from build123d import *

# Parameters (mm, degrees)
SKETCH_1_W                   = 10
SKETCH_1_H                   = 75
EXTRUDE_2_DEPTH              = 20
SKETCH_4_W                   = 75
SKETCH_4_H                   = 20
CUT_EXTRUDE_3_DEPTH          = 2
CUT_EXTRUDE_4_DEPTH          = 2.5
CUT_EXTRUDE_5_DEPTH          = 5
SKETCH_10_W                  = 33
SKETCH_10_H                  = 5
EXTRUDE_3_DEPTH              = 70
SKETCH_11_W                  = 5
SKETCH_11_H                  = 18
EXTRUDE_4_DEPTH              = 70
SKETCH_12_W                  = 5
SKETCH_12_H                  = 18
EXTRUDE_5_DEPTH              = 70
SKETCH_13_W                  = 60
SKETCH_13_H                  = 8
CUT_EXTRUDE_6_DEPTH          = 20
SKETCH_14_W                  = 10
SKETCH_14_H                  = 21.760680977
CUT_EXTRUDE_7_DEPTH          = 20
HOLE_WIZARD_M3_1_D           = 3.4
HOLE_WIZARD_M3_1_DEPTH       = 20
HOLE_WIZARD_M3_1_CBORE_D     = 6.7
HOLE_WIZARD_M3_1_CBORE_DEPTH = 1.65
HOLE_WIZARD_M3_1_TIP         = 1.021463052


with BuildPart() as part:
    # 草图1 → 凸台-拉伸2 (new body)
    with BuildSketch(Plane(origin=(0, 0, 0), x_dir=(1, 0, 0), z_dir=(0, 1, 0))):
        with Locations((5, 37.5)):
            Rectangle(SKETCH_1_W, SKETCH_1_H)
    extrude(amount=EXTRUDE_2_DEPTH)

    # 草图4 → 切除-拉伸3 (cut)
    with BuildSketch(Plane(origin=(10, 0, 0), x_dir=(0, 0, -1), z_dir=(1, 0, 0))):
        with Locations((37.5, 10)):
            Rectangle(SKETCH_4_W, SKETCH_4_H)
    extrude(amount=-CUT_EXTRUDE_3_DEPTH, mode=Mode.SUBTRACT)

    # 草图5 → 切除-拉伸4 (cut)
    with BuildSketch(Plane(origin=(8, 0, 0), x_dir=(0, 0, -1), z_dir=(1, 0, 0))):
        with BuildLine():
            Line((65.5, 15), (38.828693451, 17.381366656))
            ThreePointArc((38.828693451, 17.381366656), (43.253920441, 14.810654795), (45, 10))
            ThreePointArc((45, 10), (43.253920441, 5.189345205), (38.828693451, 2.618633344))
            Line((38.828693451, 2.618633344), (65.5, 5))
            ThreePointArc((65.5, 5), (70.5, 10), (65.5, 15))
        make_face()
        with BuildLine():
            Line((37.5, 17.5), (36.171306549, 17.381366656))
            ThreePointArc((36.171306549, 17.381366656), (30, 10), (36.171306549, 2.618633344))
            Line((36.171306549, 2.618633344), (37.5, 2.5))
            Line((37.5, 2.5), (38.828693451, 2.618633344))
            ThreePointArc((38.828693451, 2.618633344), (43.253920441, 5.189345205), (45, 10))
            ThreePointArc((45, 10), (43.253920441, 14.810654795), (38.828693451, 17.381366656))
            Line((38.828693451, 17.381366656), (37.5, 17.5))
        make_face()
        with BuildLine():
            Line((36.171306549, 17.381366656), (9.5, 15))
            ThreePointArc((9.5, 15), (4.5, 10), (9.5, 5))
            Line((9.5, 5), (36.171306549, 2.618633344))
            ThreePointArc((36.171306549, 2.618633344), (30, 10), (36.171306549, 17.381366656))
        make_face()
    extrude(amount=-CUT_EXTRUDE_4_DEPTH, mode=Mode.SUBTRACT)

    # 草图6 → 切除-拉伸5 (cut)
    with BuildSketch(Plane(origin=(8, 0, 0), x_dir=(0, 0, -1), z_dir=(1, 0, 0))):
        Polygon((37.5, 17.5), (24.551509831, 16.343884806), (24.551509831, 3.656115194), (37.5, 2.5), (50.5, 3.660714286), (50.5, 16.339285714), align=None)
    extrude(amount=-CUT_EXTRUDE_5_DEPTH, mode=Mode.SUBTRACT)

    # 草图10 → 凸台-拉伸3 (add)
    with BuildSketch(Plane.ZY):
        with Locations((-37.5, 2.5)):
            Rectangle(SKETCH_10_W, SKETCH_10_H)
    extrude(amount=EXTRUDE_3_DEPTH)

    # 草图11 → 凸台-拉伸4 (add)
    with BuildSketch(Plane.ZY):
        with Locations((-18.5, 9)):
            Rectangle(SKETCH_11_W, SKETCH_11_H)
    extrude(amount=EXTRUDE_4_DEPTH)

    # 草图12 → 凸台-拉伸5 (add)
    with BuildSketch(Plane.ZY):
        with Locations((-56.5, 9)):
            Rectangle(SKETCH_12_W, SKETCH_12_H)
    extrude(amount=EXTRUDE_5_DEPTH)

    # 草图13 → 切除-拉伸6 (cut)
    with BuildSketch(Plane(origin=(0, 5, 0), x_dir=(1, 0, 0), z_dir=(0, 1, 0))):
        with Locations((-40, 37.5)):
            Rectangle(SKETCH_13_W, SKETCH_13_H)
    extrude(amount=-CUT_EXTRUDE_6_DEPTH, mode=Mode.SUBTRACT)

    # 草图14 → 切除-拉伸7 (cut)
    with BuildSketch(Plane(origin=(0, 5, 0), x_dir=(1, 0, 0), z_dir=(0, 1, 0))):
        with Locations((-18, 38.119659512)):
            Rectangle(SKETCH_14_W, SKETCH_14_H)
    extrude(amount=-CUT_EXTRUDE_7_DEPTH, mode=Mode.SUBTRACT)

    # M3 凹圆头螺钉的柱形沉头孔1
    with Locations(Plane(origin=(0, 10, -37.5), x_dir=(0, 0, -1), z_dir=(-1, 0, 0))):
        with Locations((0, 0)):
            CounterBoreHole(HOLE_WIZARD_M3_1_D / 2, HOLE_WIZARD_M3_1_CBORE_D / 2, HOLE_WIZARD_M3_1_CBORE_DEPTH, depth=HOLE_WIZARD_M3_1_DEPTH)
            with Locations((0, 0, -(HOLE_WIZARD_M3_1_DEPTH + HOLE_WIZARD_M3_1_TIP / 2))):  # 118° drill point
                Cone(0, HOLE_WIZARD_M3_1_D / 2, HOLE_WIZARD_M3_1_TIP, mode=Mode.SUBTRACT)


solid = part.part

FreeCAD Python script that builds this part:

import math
import FreeCAD as App
import Part
import Sketcher
from FreeCAD import Vector
Q = App.Units.Quantity

doc = App.newDocument("Part")
body = doc.addObject("PartDesign::Body", "Body")

sketch1 = body.newObject("Sketcher::SketchObject", "Sketch")
sketch1.AttachmentSupport = (doc.getObject("XZ_Plane"), [""])
sketch1.MapMode = "FlatFace"
sketch1.addGeometry(Part.LineSegment(Vector(0, -75, 0), Vector(0, 0, 0)), False)
sketch1.addGeometry(Part.LineSegment(Vector(0, 0, 0), Vector(10, 0, 0)), False)
sketch1.addGeometry(Part.LineSegment(Vector(10, 0, 0), Vector(10, -75, 0)), False)
sketch1.addGeometry(Part.LineSegment(Vector(10, -75, 0), Vector(0, -75, 0)), False)
sketch1.addConstraint(Sketcher.Constraint("Coincident", 0, 2, 1, 1))
sketch1.addConstraint(Sketcher.Constraint("Coincident", 1, 2, 2, 1))
sketch1.addConstraint(Sketcher.Constraint("Coincident", 2, 2, 3, 1))
sketch1.addConstraint(Sketcher.Constraint("Coincident", 3, 2, 0, 1))
sketch1.addConstraint(Sketcher.Constraint("Vertical", 0))
sketch1.addConstraint(Sketcher.Constraint("Horizontal", 1))
sketch1.addConstraint(Sketcher.Constraint("Vertical", 2))
sketch1.addConstraint(Sketcher.Constraint("Horizontal", 3))
sketch1.addConstraint(Sketcher.Constraint("Coincident", 0, 2, -1, 1))
sketch1.addConstraint(Sketcher.Constraint("DistanceX", 1, 1, 1, 2, Q("10 mm")))
sketch1.addConstraint(Sketcher.Constraint("DistanceY", 0, 1, 0, 2, Q("75 mm")))
pad1 = body.newObject("PartDesign::Pad", "Pad")
pad1.Profile = sketch1
pad1.Length = 20
pad1.Reversed = True

sketch2 = body.newObject("Sketcher::SketchObject", "Sketch001")
sketch2.AttachmentSupport = (doc.getObject("YZ_Plane"), [""])
sketch2.MapMode = "FlatFace"
sketch2.AttachmentOffset = App.Placement(Vector(0, 0, 10), App.Rotation())
sketch2.addGeometry(Part.LineSegment(Vector(20, 0, 0), Vector(0, 0, 0)), False)
sketch2.addGeometry(Part.LineSegment(Vector(0, 0, 0), Vector(0, -75, 0)), False)
sketch2.addGeometry(Part.LineSegment(Vector(0, -75, 0), Vector(20, -75, 0)), False)
sketch2.addGeometry(Part.LineSegment(Vector(20, -75, 0), Vector(20, 0, 0)), False)
sketch2.addConstraint(Sketcher.Constraint("Coincident", 0, 2, 1, 1))
sketch2.addConstraint(Sketcher.Constraint("Coincident", 1, 2, 2, 1))
sketch2.addConstraint(Sketcher.Constraint("Coincident", 2, 2, 3, 1))
sketch2.addConstraint(Sketcher.Constraint("Coincident", 3, 2, 0, 1))
sketch2.addConstraint(Sketcher.Constraint("Horizontal", 0))
sketch2.addConstraint(Sketcher.Constraint("Vertical", 1))
sketch2.addConstraint(Sketcher.Constraint("Horizontal", 2))
sketch2.addConstraint(Sketcher.Constraint("Vertical", 3))
sketch2.addConstraint(Sketcher.Constraint("Coincident", 0, 2, -1, 1))
sketch2.addConstraint(Sketcher.Constraint("DistanceX", 0, 2, 0, 1, Q("20 mm")))
sketch2.addConstraint(Sketcher.Constraint("DistanceY", 1, 2, 1, 1, Q("75 mm")))
pocket1 = body.newObject("PartDesign::Pocket", "Pocket")
pocket1.Profile = sketch2
pocket1.Length = 2

sketch3 = body.newObject("Sketcher::SketchObject", "Sketch002")
sketch3.AttachmentSupport = (doc.getObject("YZ_Plane"), [""])
sketch3.MapMode = "FlatFace"
sketch3.AttachmentOffset = App.Placement(Vector(0, 0, 8), App.Rotation())
sketch3.addGeometry(Part.LineSegment(Vector(15, -65.5, 0), Vector(17.4, -38.8, 0)), False)
sketch3.addGeometry(Part.LineSegment(Vector(17.4, -38.8, 0), Vector(17.5, -37.5, 0)), False)
sketch3.addGeometry(Part.LineSegment(Vector(17.5, -37.5, 0), Vector(17.4, -36.2, 0)), False)
sketch3.addGeometry(Part.LineSegment(Vector(17.4, -36.2, 0), Vector(15, -9.5, 0)), False)
sketch3.addGeometry(Part.ArcOfCircle(Part.Circle(Vector(10, -9.5, 0), Vector(0, 0, 1), 5), math.radians(0), math.radians(180)), False)
sketch3.addGeometry(Part.LineSegment(Vector(5, -9.5, 0), Vector(2.6, -36.2, 0)), False)
sketch3.addGeometry(Part.LineSegment(Vector(2.6, -36.2, 0), Vector(2.5, -37.5, 0)), False)
sketch3.addGeometry(Part.LineSegment(Vector(2.5, -37.5, 0), Vector(2.6, -38.8, 0)), False)
sketch3.addGeometry(Part.LineSegment(Vector(2.6, -38.8, 0), Vector(5, -65.5, 0)), False)
sketch3.addGeometry(Part.ArcOfCircle(Part.Circle(Vector(10, -65.5, 0), Vector(0, 0, 1), 5), math.radians(180), math.radians(360)), False)
sketch3.addConstraint(Sketcher.Constraint("Coincident", 0, 2, 1, 1))
sketch3.addConstraint(Sketcher.Constraint("Coincident", 1, 2, 2, 1))
sketch3.addConstraint(Sketcher.Constraint("Coincident", 2, 2, 3, 1))
sketch3.addConstraint(Sketcher.Constraint("Coincident", 3, 2, 4, 1))
sketch3.addConstraint(Sketcher.Constraint("Coincident", 4, 2, 5, 1))
sketch3.addConstraint(Sketcher.Constraint("Coincident", 5, 2, 6, 1))
sketch3.addConstraint(Sketcher.Constraint("Coincident", 6, 2, 7, 1))
sketch3.addConstraint(Sketcher.Constraint("Coincident", 7, 2, 8, 1))
sketch3.addConstraint(Sketcher.Constraint("Coincident", 8, 2, 9, 1))
sketch3.addConstraint(Sketcher.Constraint("Coincident", 9, 2, 0, 1))
sketch3.addConstraint(Sketcher.Constraint("Equal", 4, 9))
sketch3.addConstraint(Sketcher.Constraint("Parallel", 0, 1))
sketch3.addConstraint(Sketcher.Constraint("Parallel", 2, 3))
sketch3.addConstraint(Sketcher.Constraint("Parallel", 1, 5))
sketch3.addConstraint(Sketcher.Constraint("Parallel", 5, 6))
sketch3.addConstraint(Sketcher.Constraint("Parallel", 3, 7))
sketch3.addConstraint(Sketcher.Constraint("Parallel", 7, 8))
sketch3.addConstraint(Sketcher.Constraint("Horizontal", 4, 3, 3, 2))
sketch3.addConstraint(Sketcher.Constraint("Horizontal", 3, 2, 4, 2))
sketch3.addConstraint(Sketcher.Constraint("Horizontal", 2, 2, 5, 2))
sketch3.addConstraint(Sketcher.Constraint("Horizontal", 1, 2, 6, 2))
sketch3.addConstraint(Sketcher.Constraint("Horizontal", 0, 2, 7, 2))
sketch3.addConstraint(Sketcher.Constraint("Horizontal", 9, 3, 8, 2))
sketch3.addConstraint(Sketcher.Constraint("Horizontal", 8, 2, 9, 2))
sketch3.addConstraint(Sketcher.Constraint("Vertical", 4, 3, 9, 3))
sketch3.addConstraint(Sketcher.Constraint("Vertical", 0, 2, 2, 2))
sketch3.addConstraint(Sketcher.Constraint("Radius", 4, Q("5 mm")))
sketch3.addConstraint(Sketcher.Constraint("DistanceX", -1, 1, 4, 3, Q("10 mm")))
sketch3.addConstraint(Sketcher.Constraint("DistanceY", 9, 3, 4, 3, Q("56 mm")))
sketch3.addConstraint(Sketcher.Constraint("DistanceX", 6, 2, 1, 2, Q("15 mm")))
sketch3.addConstraint(Sketcher.Constraint("DistanceY", 4, 3, -1, 1, Q("9.5 mm")))
sketch3.addConstraint(Sketcher.Constraint("Distance", 1, Q("1.333979 mm")))
pocket2 = body.newObject("PartDesign::Pocket", "Pocket001")
pocket2.Profile = sketch3
pocket2.Length = 2.5

sketch4 = body.newObject("Sketcher::SketchObject", "Sketch003")
sketch4.AttachmentSupport = (doc.getObject("YZ_Plane"), [""])
sketch4.MapMode = "FlatFace"
sketch4.AttachmentOffset = App.Placement(Vector(0, 0, 8), App.Rotation())
sketch4.addGeometry(Part.LineSegment(Vector(18, -38, 0), Vector(16, -25, 0)), False)
sketch4.addGeometry(Part.LineSegment(Vector(16, -25, 0), Vector(4, -25, 0)), False)
sketch4.addGeometry(Part.LineSegment(Vector(4, -25, 0), Vector(2, -38, 0)), False)
sketch4.addGeometry(Part.LineSegment(Vector(2, -38, 0), Vector(4, -50, 0)), False)
sketch4.addGeometry(Part.LineSegment(Vector(4, -50, 0), Vector(16, -50, 0)), False)
sketch4.addGeometry(Part.LineSegment(Vector(16, -50, 0), Vector(18, -38, 0)), False)
sketch4.addConstraint(Sketcher.Constraint("Coincident", 0, 2, 1, 1))
sketch4.addConstraint(Sketcher.Constraint("Coincident", 1, 2, 2, 1))
sketch4.addConstraint(Sketcher.Constraint("Coincident", 2, 2, 3, 1))
sketch4.addConstraint(Sketcher.Constraint("Coincident", 3, 2, 4, 1))
sketch4.addConstraint(Sketcher.Constraint("Coincident", 4, 2, 5, 1))
sketch4.addConstraint(Sketcher.Constraint("Coincident", 5, 2, 0, 1))
sketch4.addConstraint(Sketcher.Constraint("Horizontal", 1))
sketch4.addConstraint(Sketcher.Constraint("Horizontal", 4))
sketch4.addConstraint(Sketcher.Constraint("Parallel", 0, 3))
sketch4.addConstraint(Sketcher.Constraint("Parallel", 2, 5))
sketch4.addConstraint(Sketcher.Constraint("Horizontal", 2, 2, 5, 2))
sketch4.addConstraint(Sketcher.Constraint("Equal", 0, 2))
sketch4.addConstraint(Sketcher.Constraint("Distance", 0, Q("13 mm")))
sketch4.addConstraint(Sketcher.Constraint("DistanceY", 3, 2, 2, 2, Q("13 mm")))
sketch4.addConstraint(Sketcher.Constraint("DistanceX", 2, 2, 5, 2, Q("15 mm")))
sketch4.addConstraint(Sketcher.Constraint("DistanceX", -1, 1, 2, 2, Q("2.5 mm")))
sketch4.addConstraint(Sketcher.Constraint("DistanceY", 2, 2, -1, 1, Q("37.5 mm")))
sketch4.addConstraint(Sketcher.Constraint("DistanceX", 1, 2, 1, 1, Q("12.68777 mm")))
pocket3 = body.newObject("PartDesign::Pocket", "Pocket002")
pocket3.Profile = sketch4
pocket3.Length = 5

sketch5 = body.newObject("Sketcher::SketchObject", "Sketch004")
sketch5.AttachmentSupport = (doc.getObject("YZ_Plane"), [""])
sketch5.MapMode = "FlatFace"
sketch5.addGeometry(Part.LineSegment(Vector(5, -54, 0), Vector(0, -54, 0)), False)
sketch5.addGeometry(Part.LineSegment(Vector(0, -54, 0), Vector(0, -21, 0)), False)
sketch5.addGeometry(Part.LineSegment(Vector(0, -21, 0), Vector(5, -21, 0)), False)
sketch5.addGeometry(Part.LineSegment(Vector(5, -21, 0), Vector(5, -54, 0)), False)
sketch5.addConstraint(Sketcher.Constraint("Coincident", 0, 2, 1, 1))
sketch5.addConstraint(Sketcher.Constraint("Coincident", 1, 2, 2, 1))
sketch5.addConstraint(Sketcher.Constraint("Coincident", 2, 2, 3, 1))
sketch5.addConstraint(Sketcher.Constraint("Coincident", 3, 2, 0, 1))
sketch5.addConstraint(Sketcher.Constraint("Horizontal", 0))
sketch5.addConstraint(Sketcher.Constraint("Vertical", 1))
sketch5.addConstraint(Sketcher.Constraint("Horizontal", 2))
sketch5.addConstraint(Sketcher.Constraint("Vertical", 3))
sketch5.addConstraint(Sketcher.Constraint("PointOnObject", 0, 2, -2))
sketch5.addConstraint(Sketcher.Constraint("DistanceX", 0, 2, 0, 1, Q("5 mm")))
sketch5.addConstraint(Sketcher.Constraint("DistanceY", 1, 1, 1, 2, Q("33 mm")))
sketch5.addConstraint(Sketcher.Constraint("DistanceY", 0, 2, -1, 1, Q("54 mm")))
pad2 = body.newObject("PartDesign::Pad", "Pad001")
pad2.Profile = sketch5
pad2.Length = 70
pad2.Reversed = True

sketch6 = body.newObject("Sketcher::SketchObject", "Sketch005")
sketch6.AttachmentSupport = (doc.getObject("YZ_Plane"), [""])
sketch6.MapMode = "FlatFace"
sketch6.addGeometry(Part.LineSegment(Vector(18, -21, 0), Vector(0, -21, 0)), False)
sketch6.addGeometry(Part.LineSegment(Vector(0, -21, 0), Vector(0, -16, 0)), False)
sketch6.addGeometry(Part.LineSegment(Vector(0, -16, 0), Vector(18, -16, 0)), False)
sketch6.addGeometry(Part.LineSegment(Vector(18, -16, 0), Vector(18, -21, 0)), False)
sketch6.addConstraint(Sketcher.Constraint("Coincident", 0, 2, 1, 1))
sketch6.addConstraint(Sketcher.Constraint("Coincident", 1, 2, 2, 1))
sketch6.addConstraint(Sketcher.Constraint("Coincident", 2, 2, 3, 1))
sketch6.addConstraint(Sketcher.Constraint("Coincident", 3, 2, 0, 1))
sketch6.addConstraint(Sketcher.Constraint("Horizontal", 0))
sketch6.addConstraint(Sketcher.Constraint("Vertical", 1))
sketch6.addConstraint(Sketcher.Constraint("Horizontal", 2))
sketch6.addConstraint(Sketcher.Constraint("Vertical", 3))
sketch6.addConstraint(Sketcher.Constraint("PointOnObject", 0, 2, -2))
sketch6.addConstraint(Sketcher.Constraint("DistanceX", 0, 2, 0, 1, Q("18 mm")))
sketch6.addConstraint(Sketcher.Constraint("DistanceY", 1, 1, 1, 2, Q("5 mm")))
sketch6.addConstraint(Sketcher.Constraint("DistanceY", 0, 2, -1, 1, Q("21 mm")))
pad3 = body.newObject("PartDesign::Pad", "Pad002")
pad3.Profile = sketch6
pad3.Length = 70
pad3.Reversed = True

sketch7 = body.newObject("Sketcher::SketchObject", "Sketch006")
sketch7.AttachmentSupport = (doc.getObject("YZ_Plane"), [""])
sketch7.MapMode = "FlatFace"
sketch7.addGeometry(Part.LineSegment(Vector(18, -59, 0), Vector(0, -59, 0)), False)
sketch7.addGeometry(Part.LineSegment(Vector(0, -59, 0), Vector(0, -54, 0)), False)
sketch7.addGeometry(Part.LineSegment(Vector(0, -54, 0), Vector(18, -54, 0)), False)
sketch7.addGeometry(Part.LineSegment(Vector(18, -54, 0), Vector(18, -59, 0)), False)
sketch7.addConstraint(Sketcher.Constraint("Coincident", 0, 2, 1, 1))
sketch7.addConstraint(Sketcher.Constraint("Coincident", 1, 2, 2, 1))
sketch7.addConstraint(Sketcher.Constraint("Coincident", 2, 2, 3, 1))
sketch7.addConstraint(Sketcher.Constraint("Coincident", 3, 2, 0, 1))
sketch7.addConstraint(Sketcher.Constraint("Horizontal", 0))
sketch7.addConstraint(Sketcher.Constraint("Vertical", 1))
sketch7.addConstraint(Sketcher.Constraint("Horizontal", 2))
sketch7.addConstraint(Sketcher.Constraint("Vertical", 3))
sketch7.addConstraint(Sketcher.Constraint("PointOnObject", 0, 2, -2))
sketch7.addConstraint(Sketcher.Constraint("DistanceX", 0, 2, 0, 1, Q("18 mm")))
sketch7.addConstraint(Sketcher.Constraint("DistanceY", 1, 1, 1, 2, Q("5 mm")))
sketch7.addConstraint(Sketcher.Constraint("DistanceY", 0, 2, -1, 1, Q("59 mm")))
pad4 = body.newObject("PartDesign::Pad", "Pad003")
pad4.Profile = sketch7
pad4.Length = 70
pad4.Reversed = True

sketch8 = body.newObject("Sketcher::SketchObject", "Sketch007")
sketch8.AttachmentSupport = (doc.getObject("XZ_Plane"), [""])
sketch8.MapMode = "FlatFace"
sketch8.AttachmentOffset = App.Placement(Vector(0, 0, -5), App.Rotation())
sketch8.addGeometry(Part.LineSegment(Vector(-70, -42, 0), Vector(-70, -34, 0)), False)
sketch8.addGeometry(Part.LineSegment(Vector(-70, -34, 0), Vector(-10, -34, 0)), False)
sketch8.addGeometry(Part.LineSegment(Vector(-10, -34, 0), Vector(-10, -42, 0)), False)
sketch8.addGeometry(Part.LineSegment(Vector(-10, -42, 0), Vector(-70, -42, 0)), False)
sketch8.addConstraint(Sketcher.Constraint("Coincident", 0, 2, 1, 1))
sketch8.addConstraint(Sketcher.Constraint("Coincident", 1, 2, 2, 1))
sketch8.addConstraint(Sketcher.Constraint("Coincident", 2, 2, 3, 1))
sketch8.addConstraint(Sketcher.Constraint("Coincident", 3, 2, 0, 1))
sketch8.addConstraint(Sketcher.Constraint("Vertical", 0))
sketch8.addConstraint(Sketcher.Constraint("Horizontal", 1))
sketch8.addConstraint(Sketcher.Constraint("Vertical", 2))
sketch8.addConstraint(Sketcher.Constraint("Horizontal", 3))
sketch8.addConstraint(Sketcher.Constraint("DistanceX", 1, 1, 1, 2, Q("60 mm")))
sketch8.addConstraint(Sketcher.Constraint("DistanceY", 0, 1, 0, 2, Q("8 mm")))
sketch8.addConstraint(Sketcher.Constraint("DistanceX", 0, 2, -1, 1, Q("70 mm")))
sketch8.addConstraint(Sketcher.Constraint("DistanceY", 0, 2, -1, 1, Q("33.5 mm")))
pocket4 = body.newObject("PartDesign::Pocket", "Pocket003")
pocket4.Profile = sketch8
pocket4.Length = 20
pocket4.Reversed = True

sketch9 = body.newObject("Sketcher::SketchObject", "Sketch008")
sketch9.AttachmentSupport = (doc.getObject("XZ_Plane"), [""])
sketch9.MapMode = "FlatFace"
sketch9.AttachmentOffset = App.Placement(Vector(0, 0, -5), App.Rotation())
sketch9.addGeometry(Part.LineSegment(Vector(-23, -49, 0), Vector(-23, -27, 0)), False)
sketch9.addGeometry(Part.LineSegment(Vector(-23, -27, 0), Vector(-13, -27, 0)), False)
sketch9.addGeometry(Part.LineSegment(Vector(-13, -27, 0), Vector(-13, -49, 0)), False)
sketch9.addGeometry(Part.LineSegment(Vector(-13, -49, 0), Vector(-23, -49, 0)), False)
sketch9.addConstraint(Sketcher.Constraint("Coincident", 0, 2, 1, 1))
sketch9.addConstraint(Sketcher.Constraint("Coincident", 1, 2, 2, 1))
sketch9.addConstraint(Sketcher.Constraint("Coincident", 2, 2, 3, 1))
sketch9.addConstraint(Sketcher.Constraint("Coincident", 3, 2, 0, 1))
sketch9.addConstraint(Sketcher.Constraint("Vertical", 0))
sketch9.addConstraint(Sketcher.Constraint("Horizontal", 1))
sketch9.addConstraint(Sketcher.Constraint("Vertical", 2))
sketch9.addConstraint(Sketcher.Constraint("Horizontal", 3))
sketch9.addConstraint(Sketcher.Constraint("DistanceX", 1, 1, 1, 2, Q("10 mm")))
sketch9.addConstraint(Sketcher.Constraint("DistanceX", 0, 2, -1, 1, Q("23 mm")))
sketch9.addConstraint(Sketcher.Constraint("DistanceY", 2, 2, -1, 1, Q("49 mm")))
sketch9.addConstraint(Sketcher.Constraint("DistanceY", 0, 1, 0, 2, Q("21.760681 mm")))
pocket5 = body.newObject("PartDesign::Pocket", "Pocket004")
pocket5.Profile = sketch9
pocket5.Length = 20
pocket5.Reversed = True

sketch10 = body.newObject("Sketcher::SketchObject", "Sketch009")
sketch10.AttachmentSupport = (doc.getObject("YZ_Plane"), [""])
sketch10.MapMode = "FlatFace"
sketch10.addGeometry(Part.Circle(Vector(10, -37.5, 0), Vector(0, 0, 1), 1.7), False)
sketch10.addConstraint(Sketcher.Constraint("Diameter", 0, Q("3.4 mm")))
sketch10.addConstraint(Sketcher.Constraint("DistanceX", -1, 1, 0, 3, Q("10 mm")))
sketch10.addConstraint(Sketcher.Constraint("DistanceY", 0, 3, -1, 1, Q("37.5 mm")))
doc.recompute()
hole = body.newObject("PartDesign::Hole", "Hole")
hole.Profile = sketch10
hole.ThreadType = "None"
hole.Diameter = 3.4
hole.DepthType = "Dimension"
hole.Depth = 20
hole.DrillPoint = "Angled"
hole.DrillPointAngle = 118
hole.HoleCutType = "Counterbore"
hole.HoleCutDiameter = 6.7
hole.HoleCutDepth = 1.65
hole.Reversed = True

doc.recompute()
